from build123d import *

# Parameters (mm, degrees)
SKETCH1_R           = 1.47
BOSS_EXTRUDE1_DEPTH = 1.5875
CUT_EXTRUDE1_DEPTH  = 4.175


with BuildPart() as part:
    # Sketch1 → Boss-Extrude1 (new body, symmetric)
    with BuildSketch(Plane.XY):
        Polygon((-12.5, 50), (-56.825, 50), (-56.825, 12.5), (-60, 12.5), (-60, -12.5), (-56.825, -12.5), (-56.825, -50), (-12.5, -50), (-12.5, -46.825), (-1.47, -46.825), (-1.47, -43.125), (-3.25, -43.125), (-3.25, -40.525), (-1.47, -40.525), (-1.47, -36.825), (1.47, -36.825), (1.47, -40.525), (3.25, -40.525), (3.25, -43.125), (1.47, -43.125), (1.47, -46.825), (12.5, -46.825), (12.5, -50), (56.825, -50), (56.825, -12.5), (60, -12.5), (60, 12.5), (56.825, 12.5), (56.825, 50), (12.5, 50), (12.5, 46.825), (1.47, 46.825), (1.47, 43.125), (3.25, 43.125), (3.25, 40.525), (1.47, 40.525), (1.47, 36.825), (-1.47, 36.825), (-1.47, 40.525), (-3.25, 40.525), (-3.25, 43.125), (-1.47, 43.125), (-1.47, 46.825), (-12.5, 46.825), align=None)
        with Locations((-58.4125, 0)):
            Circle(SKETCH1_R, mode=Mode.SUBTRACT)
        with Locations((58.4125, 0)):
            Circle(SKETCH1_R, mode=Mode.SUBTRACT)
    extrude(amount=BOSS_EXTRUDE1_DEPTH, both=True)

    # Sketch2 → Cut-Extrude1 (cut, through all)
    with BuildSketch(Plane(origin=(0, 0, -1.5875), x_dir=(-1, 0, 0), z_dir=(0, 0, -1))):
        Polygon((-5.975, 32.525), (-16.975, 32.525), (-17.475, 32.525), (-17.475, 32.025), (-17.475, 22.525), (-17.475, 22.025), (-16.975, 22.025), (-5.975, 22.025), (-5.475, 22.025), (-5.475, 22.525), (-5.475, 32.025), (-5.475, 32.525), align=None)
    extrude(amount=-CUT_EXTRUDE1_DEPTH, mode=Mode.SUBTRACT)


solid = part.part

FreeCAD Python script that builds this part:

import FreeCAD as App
import Part
import Sketcher
Q = App.Units.Quantity

doc = App.newDocument("Part")
body = doc.addObject("PartDesign::Body", "Body")

# Sketch on XY plane
sketch1 = doc.addObject("Sketcher::SketchObject", "Sketch")
body.addObject(sketch1)
sketch1.AttachmentSupport = (doc.XY_Plane, [""])
sketch1.MapMode = "FlatFace"
sketch1.addGeometry([
    Part.LineSegment(App.Vector(-12.5, 50, 0), App.Vector(-56.825, 50, 0)),  # 0
    Part.LineSegment(App.Vector(-56.825, 50, 0), App.Vector(-56.825, 12.5, 0)),  # 1
    Part.LineSegment(App.Vector(-56.825, 12.5, 0), App.Vector(-60, 12.5, 0)),  # 2
    Part.LineSegment(App.Vector(-60, 12.5, 0), App.Vector(-60, -12.5, 0)),  # 3
    Part.LineSegment(App.Vector(-60, -12.5, 0), App.Vector(-56.825, -12.5, 0)),  # 4
    Part.LineSegment(App.Vector(-56.825, -12.5, 0), App.Vector(-56.825, -50, 0)),  # 5
    Part.LineSegment(App.Vector(-56.825, -50, 0), App.Vector(-12.5, -50, 0)),  # 6
    Part.LineSegment(App.Vector(-12.5, -50, 0), App.Vector(-12.5, -46.825, 0)),  # 7
    Part.LineSegment(App.Vector(-12.5, -46.825, 0), App.Vector(-1.47, -46.825, 0)),  # 8
    Part.LineSegment(App.Vector(-1.47, -46.825, 0), App.Vector(-1.47, -43.125, 0)),  # 9
    Part.LineSegment(App.Vector(-1.47, -43.125, 0), App.Vector(-3.25, -43.125, 0)),  # 10
    Part.LineSegment(App.Vector(-3.25, -43.125, 0), App.Vector(-3.25, -40.525, 0)),  # 11
    Part.LineSegment(App.Vector(-3.25, -40.525, 0), App.Vector(-1.47, -40.525, 0)),  # 12
    Part.LineSegment(App.Vector(-1.47, -40.525, 0), App.Vector(-1.47, -36.825, 0)),  # 13
    Part.LineSegment(App.Vector(-1.47, -36.825, 0), App.Vector(1.47, -36.825, 0)),  # 14
    Part.LineSegment(App.Vector(1.47, -36.825, 0), App.Vector(1.47, -40.525, 0)),  # 15
    Part.LineSegment(App.Vector(1.47, -40.525, 0), App.Vector(3.25, -40.525, 0)),  # 16
    Part.LineSegment(App.Vector(3.25, -40.525, 0), App.Vector(3.25, -43.125, 0)),  # 17
    Part.LineSegment(App.Vector(3.25, -43.125, 0), App.Vector(1.47, -43.125, 0)),  # 18
    Part.LineSegment(App.Vector(1.47, -43.125, 0), App.Vector(1.47, -46.825, 0)),  # 19
    Part.LineSegment(App.Vector(1.47, -46.825, 0), App.Vector(12.5, -46.825, 0)),  # 20
    Part.LineSegment(App.Vector(12.5, -46.825, 0), App.Vector(12.5, -50, 0)),  # 21
    Part.LineSegment(App.Vector(12.5, -50, 0), App.Vector(56.825, -50, 0)),  # 22
    Part.LineSegment(App.Vector(56.825, -50, 0), App.Vector(56.825, -12.5, 0)),  # 23
    Part.LineSegment(App.Vector(56.825, -12.5, 0), App.Vector(60, -12.5, 0)),  # 24
    Part.LineSegment(App.Vector(60, -12.5, 0), App.Vector(60, 12.5, 0)),  # 25
    Part.LineSegment(App.Vector(60, 12.5, 0), App.Vector(56.825, 12.5, 0)),  # 26
    Part.LineSegment(App.Vector(56.825, 12.5, 0), App.Vector(56.825, 50, 0)),  # 27
    Part.LineSegment(App.Vector(56.825, 50, 0), App.Vector(12.5, 50, 0)),  # 28
    Part.LineSegment(App.Vector(12.5, 50, 0), App.Vector(12.5, 46.825, 0)),  # 29
    Part.LineSegment(App.Vector(12.5, 46.825, 0), App.Vector(1.47, 46.825, 0)),  # 30
    Part.LineSegment(App.Vector(1.47, 46.825, 0), App.Vector(1.47, 43.125, 0)),  # 31
    Part.LineSegment(App.Vector(1.47, 43.125, 0), App.Vector(3.25, 43.125, 0)),  # 32
    Part.LineSegment(App.Vector(3.25, 43.125, 0), App.Vector(3.25, 40.525, 0)),  # 33
    Part.LineSegment(App.Vector(3.25, 40.525, 0), App.Vector(1.47, 40.525, 0)),  # 34
    Part.LineSegment(App.Vector(1.47, 40.525, 0), App.Vector(1.47, 36.825, 0)),  # 35
    Part.LineSegment(App.Vector(1.47, 36.825, 0), App.Vector(-1.47, 36.825, 0)),  # 36
    Part.LineSegment(App.Vector(-1.47, 36.825, 0), App.Vector(-1.47, 40.525, 0)),  # 37
    Part.LineSegment(App.Vector(-1.47, 40.525, 0), App.Vector(-3.25, 40.525, 0)),  # 38
    Part.LineSegment(App.Vector(-3.25, 40.525, 0), App.Vector(-3.25, 43.125, 0)),  # 39
    Part.LineSegment(App.Vector(-3.25, 43.125, 0), App.Vector(-1.47, 43.125, 0)),  # 40
    Part.LineSegment(App.Vector(-1.47, 43.125, 0), App.Vector(-1.47, 46.825, 0)),  # 41
    Part.LineSegment(App.Vector(-1.47, 46.825, 0), App.Vector(-12.5, 46.825, 0)),  # 42
    Part.LineSegment(App.Vector(-12.5, 46.825, 0), App.Vector(-12.5, 50, 0)),  # 43
    Part.Circle(App.Vector(-58.4125, 0, 0), App.Vector(0, 0, 1), 1.47),  # 44
    Part.Circle(App.Vector(58.4125, 0, 0), App.Vector(0, 0, 1), 1.47),  # 45
], False)
sketch1.addConstraint([
    Sketcher.Constraint("Coincident", 0, 2, 1, 1),
    Sketcher.Constraint("Coincident", 1, 2, 2, 1),
    Sketcher.Constraint("Coincident", 2, 2, 3, 1),
    Sketcher.Constraint("Coincident", 3, 2, 4, 1),
    Sketcher.Constraint("Coincident", 4, 2, 5, 1),
    Sketcher.Constraint("Coincident", 5, 2, 6, 1),
    Sketcher.Constraint("Coincident", 6, 2, 7, 1),
    Sketcher.Constraint("Coincident", 7, 2, 8, 1),
    Sketcher.Constraint("Coincident", 8, 2, 9, 1),
    Sketcher.Constraint("Coincident", 9, 2, 10, 1),
    Sketcher.Constraint("Coincident", 10, 2, 11, 1),
    Sketcher.Constraint("Coincident", 11, 2, 12, 1),
    Sketcher.Constraint("Coincident", 12, 2, 13, 1),
    Sketcher.Constraint("Coincident", 13, 2, 14, 1),
    Sketcher.Constraint("Coincident", 14, 2, 15, 1),
    Sketcher.Constraint("Coincident", 15, 2, 16, 1),
    Sketcher.Constraint("Coincident", 16, 2, 17, 1),
    Sketcher.Constraint("Coincident", 17, 2, 18, 1),
    Sketcher.Constraint("Coincident", 18, 2, 19, 1),
    Sketcher.Constraint("Coincident", 19, 2, 20, 1),
    Sketcher.Constraint("Coincident", 20, 2, 21, 1),
    Sketcher.Constraint("Coincident", 21, 2, 22, 1),
    Sketcher.Constraint("Coincident", 22, 2, 23, 1),
    Sketcher.Constraint("Coincident", 23, 2, 24, 1),
    Sketcher.Constraint("Coincident", 24, 2, 25, 1),
    Sketcher.Constraint("Coincident", 25, 2, 26, 1),
    Sketcher.Constraint("Coincident", 26, 2, 27, 1),
    Sketcher.Constraint("Coincident", 27, 2, 28, 1),
    Sketcher.Constraint("Coincident", 28, 2, 29, 1),
    Sketcher.Constraint("Coincident", 29, 2, 30, 1),
    Sketcher.Constraint("Coincident", 30, 2, 31, 1),
    Sketcher.Constraint("Coincident", 31, 2, 32, 1),
    Sketcher.Constraint("Coincident", 32, 2, 33, 1),
    Sketcher.Constraint("Coincident", 33, 2, 34, 1),
    Sketcher.Constraint("Coincident", 34, 2, 35, 1),
    Sketcher.Constraint("Coincident", 35, 2, 36, 1),
    Sketcher.Constraint("Coincident", 36, 2, 37, 1),
    Sketcher.Constraint("Coincident", 37, 2, 38, 1),
    Sketcher.Constraint("Coincident", 38, 2, 39, 1),
    Sketcher.Constraint("Coincident", 39, 2, 40, 1),
    Sketcher.Constraint("Coincident", 40, 2, 41, 1),
    Sketcher.Constraint("Coincident", 41, 2, 42, 1),
    Sketcher.Constraint("Coincident", 42, 2, 43, 1),
    Sketcher.Constraint("Coincident", 43, 2, 0, 1),
    Sketcher.Constraint("Horizontal", 0),
    Sketcher.Constraint("Vertical", 1),
    Sketcher.Constraint("Horizontal", 2),
    Sketcher.Constraint("Vertical", 3),
    Sketcher.Constraint("Horizontal", 4),
    Sketcher.Constraint("Vertical", 5),
    Sketcher.Constraint("Horizontal", 6),
    Sketcher.Constraint("Vertical", 7),
    Sketcher.Constraint("Horizontal", 8),
    Sketcher.Constraint("Vertical", 9),
    Sketcher.Constraint("Horizontal", 10),
    Sketcher.Constraint("Vertical", 11),
    Sketcher.Constraint("Horizontal", 12),
    Sketcher.Constraint("Vertical", 13),
    Sketcher.Constraint("Horizontal", 14),
    Sketcher.Constraint("Vertical", 15),
    Sketcher.Constraint("Horizontal", 16),
    Sketcher.Constraint("Vertical", 17),
    Sketcher.Constraint("Horizontal", 18),
    Sketcher.Constraint("Vertical", 19),
    Sketcher.Constraint("Horizontal", 20),
    Sketcher.Constraint("Vertical", 21),
    Sketcher.Constraint("Horizontal", 22),
    Sketcher.Constraint("Vertical", 23),
    Sketcher.Constraint("Horizontal", 24),
    Sketcher.Constraint("Vertical", 25),
    Sketcher.Constraint("Horizontal", 26),
    Sketcher.Constraint("Vertical", 27),
    Sketcher.Constraint("Horizontal", 28),
    Sketcher.Constraint("Vertical", 29),
    Sketcher.Constraint("Horizontal", 30),
    Sketcher.Constraint("Vertical", 31),
    Sketcher.Constraint("Horizontal", 32),
    Sketcher.Constraint("Vertical", 33),
    Sketcher.Constraint("Horizontal", 34),
    Sketcher.Constraint("Vertical", 35),
    Sketcher.Constraint("Horizontal", 36),
    Sketcher.Constraint("Vertical", 37),
    Sketcher.Constraint("Horizontal", 38),
    Sketcher.Constraint("Vertical", 39),
    Sketcher.Constraint("Horizontal", 40),
    Sketcher.Constraint("Vertical", 41),
    Sketcher.Constraint("Horizontal", 42),
    Sketcher.Constraint("Vertical", 43),
    Sketcher.Constraint("Equal", 44, 45),
    Sketcher.Constraint("Symmetric", 44, 3, 45, 3, -1, 1),
    Sketcher.Constraint("Symmetric", 0, 2, 22, 2, -1, 1),
    Sketcher.Constraint("Symmetric", 2, 2, 24, 2, -1, 1),
    Sketcher.Constraint("Symmetric", 4, 2, 26, 2, -1, 1),
    Sketcher.Constraint("Symmetric", 6, 2, 28, 2, -1, 1),
    Sketcher.Constraint("Symmetric", 8, 2, 30, 2, -1, 1),
    Sketcher.Constraint("Symmetric", 10, 2, 32, 2, -1, 1),
    Sketcher.Constraint("Symmetric", 12, 2, 34, 2, -1, 1),
    Sketcher.Constraint("Symmetric", 14, 2, 36, 2, -1, 1),
    Sketcher.Constraint("Symmetric", 16, 2, 38, 2, -1, 1),
    Sketcher.Constraint("Symmetric", 18, 2, 40, 2, -1, 1),
    Sketcher.Constraint("Symmetric", 20, 2, 42, 2, -1, 1),
    Sketcher.Constraint("Symmetric", 12, 2, 15, 2, -2),
    Sketcher.Constraint("Symmetric", 10, 2, 17, 2, -2),
    Sketcher.Constraint("Symmetric", 8, 2, 19, 2, -2),
    Sketcher.Constraint("Symmetric", 6, 2, 21, 2, -2),
    Sketcher.Constraint("Symmetric", 4, 2, 23, 2, -2),
    Sketcher.Constraint("PointOnObject", 44, 3, -1),
    Sketcher.Constraint("Vertical", 9, 2, 12, 2),
    Sketcher.Constraint("Equal", 26, 7),
    Sketcher.Constraint("Equal", 9, 13),
    Sketcher.Constraint("Diameter", 44, Q("2.94 mm")),
    Sketcher.Constraint("DistanceY", 3, 2, 3, 1, Q("25 mm")),
    Sketcher.Constraint("DistanceY", 1, 2, 1, 1, Q("37.5 mm")),
    Sketcher.Constraint("DistanceY", 9, 1, 9, 2, Q("3.7 mm")),
    Sketcher.Constraint("DistanceY", 11, 1, 11, 2, Q("2.6 mm")),
    Sketcher.Constraint("DistanceX", 2, 2, -1, 1, Q("60 mm")),
    Sketcher.Constraint("DistanceX", 8, 1, 8, 2, Q("11.03 mm")),
    Sketcher.Constraint("DistanceX", 10, 2, 10, 1, Q("1.78 mm")),
    Sketcher.Constraint("DistanceX", 14, 1, 14, 2, Q("2.94 mm")),
    Sketcher.Constraint("DistanceX", 0, 2, 0, 1, Q("44.325 mm")),
    Sketcher.Constraint("DistanceX", 44, 3, 45, 3, Q("116.825 mm")),
])
pad1 = doc.addObject("PartDesign::Pad", "Pad")
body.addObject(pad1)
pad1.Profile = sketch1
pad1.Length = 3.175
pad1.Midplane = True

# Sketch on XY plane
sketch2 = doc.addObject("Sketcher::SketchObject", "Sketch001")
body.addObject(sketch2)
sketch2.AttachmentSupport = (doc.XY_Plane, [""])
sketch2.MapMode = "FlatFace"
sketch2.AttachmentOffset = App.Placement(App.Vector(0, 0, -1.5875), App.Rotation())
sketch2.addGeometry([
    Part.LineSegment(App.Vector(17.475, 32.525, 0), App.Vector(17.475, 22.025, 0)),
    Part.LineSegment(App.Vector(17.475, 22.025, 0), App.Vector(5.475, 22.025, 0)),
    Part.LineSegment(App.Vector(5.475, 22.025, 0), App.Vector(5.475, 32.525, 0)),
    Part.LineSegment(App.Vector(5.475, 32.525, 0), App.Vector(17.475, 32.525, 0)),
], False)
sketch2.addConstraint([
    Sketcher.Constraint("Coincident", 0, 2, 1, 1),
    Sketcher.Constraint("Coincident", 1, 2, 2, 1),
    Sketcher.Constraint("Coincident", 2, 2, 3, 1),
    Sketcher.Constraint("Coincident", 3, 2, 0, 1),
    Sketcher.Constraint("Vertical", 0),
    Sketcher.Constraint("Horizontal", 1),
    Sketcher.Constraint("Vertical", 2),
    Sketcher.Constraint("Horizontal", 3),
    Sketcher.Constraint("DistanceX", 1, 2, 1, 1, Q("12 mm")),
    Sketcher.Constraint("DistanceY", 0, 2, 0, 1, Q("10.5 mm")),
    Sketcher.Constraint("DistanceX", -1, 1, 0, 2, Q("17.475 mm")),
    Sketcher.Constraint("DistanceY", -1, 1, 0, 2, Q("22.025 mm")),
])
pocket1 = doc.addObject("PartDesign::Pocket", "Pocket")
body.addObject(pocket1)
pocket1.Profile = sketch2
pocket1.Type = "ThroughAll"
pocket1.Reversed = True

doc.recompute()
